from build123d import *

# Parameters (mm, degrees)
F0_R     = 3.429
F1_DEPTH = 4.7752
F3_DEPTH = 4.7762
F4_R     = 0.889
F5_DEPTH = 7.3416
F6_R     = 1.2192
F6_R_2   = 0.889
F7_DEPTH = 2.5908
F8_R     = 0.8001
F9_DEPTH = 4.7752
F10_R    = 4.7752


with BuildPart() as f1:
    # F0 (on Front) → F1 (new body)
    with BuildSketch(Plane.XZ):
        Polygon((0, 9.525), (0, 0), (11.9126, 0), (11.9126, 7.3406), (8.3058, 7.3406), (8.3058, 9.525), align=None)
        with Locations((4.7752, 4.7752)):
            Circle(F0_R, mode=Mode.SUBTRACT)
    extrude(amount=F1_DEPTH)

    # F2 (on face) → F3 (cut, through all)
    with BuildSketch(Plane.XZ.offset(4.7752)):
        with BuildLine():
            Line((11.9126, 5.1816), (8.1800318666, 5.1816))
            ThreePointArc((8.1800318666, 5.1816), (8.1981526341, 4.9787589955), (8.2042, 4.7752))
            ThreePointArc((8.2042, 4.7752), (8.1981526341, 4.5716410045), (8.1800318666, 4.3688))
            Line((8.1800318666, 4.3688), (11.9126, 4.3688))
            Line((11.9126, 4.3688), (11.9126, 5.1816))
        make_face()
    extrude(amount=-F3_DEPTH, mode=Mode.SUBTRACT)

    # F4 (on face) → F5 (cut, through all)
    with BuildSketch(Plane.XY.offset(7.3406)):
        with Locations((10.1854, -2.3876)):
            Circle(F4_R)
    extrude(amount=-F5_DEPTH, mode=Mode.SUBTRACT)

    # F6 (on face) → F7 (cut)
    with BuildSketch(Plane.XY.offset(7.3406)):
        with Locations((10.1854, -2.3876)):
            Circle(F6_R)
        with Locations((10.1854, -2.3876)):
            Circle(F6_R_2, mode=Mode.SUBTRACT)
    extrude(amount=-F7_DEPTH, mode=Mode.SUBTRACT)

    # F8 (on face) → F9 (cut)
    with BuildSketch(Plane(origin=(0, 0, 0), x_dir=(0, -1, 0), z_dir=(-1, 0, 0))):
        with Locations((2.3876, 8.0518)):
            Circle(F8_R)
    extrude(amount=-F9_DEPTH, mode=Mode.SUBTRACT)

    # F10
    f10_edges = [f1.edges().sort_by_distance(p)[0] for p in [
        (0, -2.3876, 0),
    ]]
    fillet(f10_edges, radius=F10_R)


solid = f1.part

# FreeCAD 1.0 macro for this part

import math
import FreeCAD as App
import Part
import Sketcher
Q = App.Units.Quantity


def edges_at(feature, points):
    """Names of the edges that pass closest to the given points."""
    edges = feature.Shape.Edges
    near = lambda p: min(range(len(edges)), key=lambda i: edges[i].distToShape(Part.Vertex(*p))[0])
    return sorted({f"Edge{near(p) + 1}" for p in points})


def add_polygon(sketch, points):
    """Adds a closed chain of lines whose ends are joined by coincident constraints."""
    first, n = sketch.GeometryCount, len(points)
    for a, b in zip(points, points[1:] + points[:1]):
        sketch.addGeometry(Part.LineSegment(App.Vector(*a, 0), App.Vector(*b, 0)), False)
    for i in range(n):
        sketch.addConstraint(Sketcher.Constraint("Coincident", first + i, 2, first + (i + 1) % n, 1))

doc = App.newDocument("Part")
params = doc.addObject("Spreadsheet::Sheet", "Params")
for row, (alias, value) in enumerate([
    ("sketch1_diameter", "0.27 in"),
    ("sketch1_width", "0.469 in"),
    ("sketch1_width2", "0.142 in"),
    ("sketch1_height", "0.375 in"),
    ("sketch1_height2", "0.289 in"),
    ("pad1_length", "0.188 in"),
    ("sketch2_radius", "0.135 in"),
    ("sketch2_height", "0.032 in"),
    ("sketch3_diameter", "0.07 in"),
    ("sketch4_diameter", "0.07 in"),
    ("sketch4_diameter2", "0.096 in"),
    ("pocket3_length", "0.102 in"),
    ("sketch5_diameter", "0.063 in"),
    ("pocket4_length", "0.188 in"),
    ("fillet_radius", "0.188 in"),
], start=1):
    params.set(f"A{row}", alias)
    params.set(f"B{row}", "=" + value)
    params.setAlias(f"B{row}", alias)

body = doc.addObject("PartDesign::Body", "Body")

sketch1 = body.newObject("Sketcher::SketchObject", "Sketch")
sketch1.AttachmentSupport = (doc.getObject("XZ_Plane"), [""])
sketch1.MapMode = "FlatFace"
add_polygon(sketch1, [(0, 9.525), (0, 0), (11.9126, 0), (11.9126, 7.3406), (8.3058, 7.3406), (8.3058, 9.525)])
sketch1.addGeometry(Part.Circle(App.Vector(4.7752, 4.7752, 0), App.Vector(0, 0, 1), 3.429), False)
sketch1.addConstraint([
    Sketcher.Constraint("Vertical", 0),
    Sketcher.Constraint("Horizontal", 1),
    Sketcher.Constraint("Vertical", 2),
    Sketcher.Constraint("Horizontal", 3),
    Sketcher.Constraint("Vertical", 4),
    Sketcher.Constraint("Horizontal", 5),
    Sketcher.Constraint("Coincident", 0, 2, -1, 1),
    Sketcher.Constraint("Diameter", 6, Q("0.27 in")),
    Sketcher.Constraint("DistanceX", 1, 1, 1, 2, Q("0.469 in")),
    Sketcher.Constraint("DistanceX", 3, 2, 3, 1, Q("0.142 in")),
    Sketcher.Constraint("DistanceY", 0, 2, 0, 1, Q("0.375 in")),
    Sketcher.Constraint("DistanceY", 2, 1, 2, 2, Q("0.289 in")),
    Sketcher.Constraint("DistanceX", -1, 1, 6, 3, Q("0.188 in")),
    Sketcher.Constraint("DistanceY", -1, 1, 6, 3, Q("0.188 in")),
])
sketch1.setExpression("Constraints[13]", "Params.sketch1_diameter")
sketch1.setExpression("Constraints[14]", "Params.sketch1_width")
sketch1.setExpression("Constraints[15]", "Params.sketch1_width2")
sketch1.setExpression("Constraints[16]", "Params.sketch1_height")
sketch1.setExpression("Constraints[17]", "Params.sketch1_height2")
pad1 = body.newObject("PartDesign::Pad", "Pad")
pad1.Profile = sketch1
pad1.setExpression("Length", "Params.pad1_length")

sketch2 = body.newObject("Sketcher::SketchObject", "Sketch001")
sketch2.AttachmentSupport = (doc.getObject("XZ_Plane"), [""])
sketch2.MapMode = "FlatFace"
sketch2.AttachmentOffset = App.Placement(App.Vector(0, 0, 0.188 * 25.4), App.Rotation())
sketch2.addGeometry([
    Part.LineSegment(App.Vector(11.9126, 5.1816, 0), App.Vector(8.180032, 5.1816, 0)),
    Part.ArcOfCircle(Part.Circle(App.Vector(4.7752, 4.7752, 0), App.Vector(0, 0, 1), 3.429), math.radians(0), math.radians(6.80661)),
    Part.ArcOfCircle(Part.Circle(App.Vector(4.7752, 4.7752, 0), App.Vector(0, 0, 1), 3.429), math.radians(-6.80661), math.radians(0)),
    Part.LineSegment(App.Vector(8.180032, 4.3688, 0), App.Vector(11.9126, 4.3688, 0)),
    Part.LineSegment(App.Vector(11.9126, 4.3688, 0), App.Vector(11.9126, 5.1816, 0)),
], False)
sketch2.addConstraint([
    Sketcher.Constraint("Coincident", 0, 2, 1, 2),
    Sketcher.Constraint("Tangent", 1, 1, 2, 2),
    Sketcher.Constraint("Coincident", 2, 1, 3, 1),
    Sketcher.Constraint("Coincident", 3, 2, 4, 1),
    Sketcher.Constraint("Coincident", 4, 2, 0, 1),
    Sketcher.Constraint("Horizontal", 0),
    Sketcher.Constraint("Horizontal", 3),
    Sketcher.Constraint("Vertical", 4),
    Sketcher.Constraint("Equal", 1, 2),
    Sketcher.Constraint("Horizontal", 2, 3, 1, 1),
    Sketcher.Constraint("Vertical", 0, 2, 2, 1),
    Sketcher.Constraint("Radius", 1, Q("0.135 in")),
    Sketcher.Constraint("DistanceY", 4, 1, 4, 2, Q("0.032 in")),
    Sketcher.Constraint("DistanceX", -1, 1, 1, 3, Q("0.188 in")),
    Sketcher.Constraint("DistanceY", -1, 1, 1, 3, Q("0.188 in")),
    Sketcher.Constraint("DistanceX", -1, 1, 3, 2, Q("0.469 in")),
])
sketch2.setExpression("Constraints[11]", "Params.sketch2_radius")
sketch2.setExpression("Constraints[12]", "Params.sketch2_height")
pocket1 = body.newObject("PartDesign::Pocket", "Pocket")
pocket1.Profile = sketch2
pocket1.Type = "ThroughAll"

sketch3 = body.newObject("Sketcher::SketchObject", "Sketch002")
sketch3.AttachmentSupport = (doc.getObject("XY_Plane"), [""])
sketch3.MapMode = "FlatFace"
sketch3.AttachmentOffset = App.Placement(App.Vector(0, 0, 0.289 * 25.4), App.Rotation())
sketch3.addGeometry(Part.Circle(App.Vector(10.1854, -2.3876, 0), App.Vector(0, 0, 1), 0.889), False)
sketch3.addConstraint([
    Sketcher.Constraint("Diameter", 0, Q("0.07 in")),
    Sketcher.Constraint("DistanceX", -1, 1, 0, 3, Q("0.401 in")),
    Sketcher.Constraint("DistanceY", 0, 3, -1, 1, Q("0.094 in")),
])
sketch3.setExpression("Constraints[0]", "Params.sketch3_diameter")
pocket2 = body.newObject("PartDesign::Pocket", "Pocket001")
pocket2.Profile = sketch3
pocket2.Type = "ThroughAll"

sketch4 = body.newObject("Sketcher::SketchObject", "Sketch003")
sketch4.AttachmentSupport = (doc.getObject("XY_Plane"), [""])
sketch4.MapMode = "FlatFace"
sketch4.AttachmentOffset = App.Placement(App.Vector(0, 0, 0.289 * 25.4), App.Rotation())
sketch4.addGeometry([
    Part.Circle(App.Vector(10.1854, -2.3876, 0), App.Vector(0, 0, 1), 1.2192),
    Part.Circle(App.Vector(10.1854, -2.3876, 0), App.Vector(0, 0, 1), 0.889),
], False)
sketch4.addConstraint([
    Sketcher.Constraint("Coincident", 1, 3, 0, 3),
    Sketcher.Constraint("Diameter", 1, Q("0.07 in")),
    Sketcher.Constraint("Diameter", 0, Q("0.096 in")),
    Sketcher.Constraint("DistanceX", -1, 1, 0, 3, Q("0.401 in")),
    Sketcher.Constraint("DistanceY", 0, 3, -1, 1, Q("0.094 in")),
])
sketch4.setExpression("Constraints[1]", "Params.sketch4_diameter")
sketch4.setExpression("Constraints[2]", "Params.sketch4_diameter2")
pocket3 = body.newObject("PartDesign::Pocket", "Pocket002")
pocket3.Profile = sketch4
pocket3.setExpression("Length", "Params.pocket3_length")

sketch5 = body.newObject("Sketcher::SketchObject", "Sketch004")
sketch5.AttachmentSupport = (doc.getObject("YZ_Plane"), [""])
sketch5.MapMode = "FlatFace"
sketch5.addGeometry(Part.Circle(App.Vector(-2.3876, 8.0518, 0), App.Vector(0, 0, 1), 0.8001), False)
sketch5.addConstraint([
    Sketcher.Constraint("Diameter", 0, Q("0.063 in")),
    Sketcher.Constraint("DistanceX", 0, 3, -1, 1, Q("0.094 in")),
    Sketcher.Constraint("DistanceY", -1, 1, 0, 3, Q("0.317 in")),
])
sketch5.setExpression("Constraints[0]", "Params.sketch5_diameter")
pocket4 = body.newObject("PartDesign::Pocket", "Pocket003")
pocket4.Profile = sketch5
pocket4.setExpression("Length", "Params.pocket4_length")
pocket4.Reversed = True
doc.recompute()

fillet = body.newObject("PartDesign::Fillet", "Fillet")
fillet.Base = (pocket4, edges_at(pocket4, [(0, -2.388, 0)]))
fillet.setExpression("Radius", "Params.fillet_radius")

doc.recompute()
